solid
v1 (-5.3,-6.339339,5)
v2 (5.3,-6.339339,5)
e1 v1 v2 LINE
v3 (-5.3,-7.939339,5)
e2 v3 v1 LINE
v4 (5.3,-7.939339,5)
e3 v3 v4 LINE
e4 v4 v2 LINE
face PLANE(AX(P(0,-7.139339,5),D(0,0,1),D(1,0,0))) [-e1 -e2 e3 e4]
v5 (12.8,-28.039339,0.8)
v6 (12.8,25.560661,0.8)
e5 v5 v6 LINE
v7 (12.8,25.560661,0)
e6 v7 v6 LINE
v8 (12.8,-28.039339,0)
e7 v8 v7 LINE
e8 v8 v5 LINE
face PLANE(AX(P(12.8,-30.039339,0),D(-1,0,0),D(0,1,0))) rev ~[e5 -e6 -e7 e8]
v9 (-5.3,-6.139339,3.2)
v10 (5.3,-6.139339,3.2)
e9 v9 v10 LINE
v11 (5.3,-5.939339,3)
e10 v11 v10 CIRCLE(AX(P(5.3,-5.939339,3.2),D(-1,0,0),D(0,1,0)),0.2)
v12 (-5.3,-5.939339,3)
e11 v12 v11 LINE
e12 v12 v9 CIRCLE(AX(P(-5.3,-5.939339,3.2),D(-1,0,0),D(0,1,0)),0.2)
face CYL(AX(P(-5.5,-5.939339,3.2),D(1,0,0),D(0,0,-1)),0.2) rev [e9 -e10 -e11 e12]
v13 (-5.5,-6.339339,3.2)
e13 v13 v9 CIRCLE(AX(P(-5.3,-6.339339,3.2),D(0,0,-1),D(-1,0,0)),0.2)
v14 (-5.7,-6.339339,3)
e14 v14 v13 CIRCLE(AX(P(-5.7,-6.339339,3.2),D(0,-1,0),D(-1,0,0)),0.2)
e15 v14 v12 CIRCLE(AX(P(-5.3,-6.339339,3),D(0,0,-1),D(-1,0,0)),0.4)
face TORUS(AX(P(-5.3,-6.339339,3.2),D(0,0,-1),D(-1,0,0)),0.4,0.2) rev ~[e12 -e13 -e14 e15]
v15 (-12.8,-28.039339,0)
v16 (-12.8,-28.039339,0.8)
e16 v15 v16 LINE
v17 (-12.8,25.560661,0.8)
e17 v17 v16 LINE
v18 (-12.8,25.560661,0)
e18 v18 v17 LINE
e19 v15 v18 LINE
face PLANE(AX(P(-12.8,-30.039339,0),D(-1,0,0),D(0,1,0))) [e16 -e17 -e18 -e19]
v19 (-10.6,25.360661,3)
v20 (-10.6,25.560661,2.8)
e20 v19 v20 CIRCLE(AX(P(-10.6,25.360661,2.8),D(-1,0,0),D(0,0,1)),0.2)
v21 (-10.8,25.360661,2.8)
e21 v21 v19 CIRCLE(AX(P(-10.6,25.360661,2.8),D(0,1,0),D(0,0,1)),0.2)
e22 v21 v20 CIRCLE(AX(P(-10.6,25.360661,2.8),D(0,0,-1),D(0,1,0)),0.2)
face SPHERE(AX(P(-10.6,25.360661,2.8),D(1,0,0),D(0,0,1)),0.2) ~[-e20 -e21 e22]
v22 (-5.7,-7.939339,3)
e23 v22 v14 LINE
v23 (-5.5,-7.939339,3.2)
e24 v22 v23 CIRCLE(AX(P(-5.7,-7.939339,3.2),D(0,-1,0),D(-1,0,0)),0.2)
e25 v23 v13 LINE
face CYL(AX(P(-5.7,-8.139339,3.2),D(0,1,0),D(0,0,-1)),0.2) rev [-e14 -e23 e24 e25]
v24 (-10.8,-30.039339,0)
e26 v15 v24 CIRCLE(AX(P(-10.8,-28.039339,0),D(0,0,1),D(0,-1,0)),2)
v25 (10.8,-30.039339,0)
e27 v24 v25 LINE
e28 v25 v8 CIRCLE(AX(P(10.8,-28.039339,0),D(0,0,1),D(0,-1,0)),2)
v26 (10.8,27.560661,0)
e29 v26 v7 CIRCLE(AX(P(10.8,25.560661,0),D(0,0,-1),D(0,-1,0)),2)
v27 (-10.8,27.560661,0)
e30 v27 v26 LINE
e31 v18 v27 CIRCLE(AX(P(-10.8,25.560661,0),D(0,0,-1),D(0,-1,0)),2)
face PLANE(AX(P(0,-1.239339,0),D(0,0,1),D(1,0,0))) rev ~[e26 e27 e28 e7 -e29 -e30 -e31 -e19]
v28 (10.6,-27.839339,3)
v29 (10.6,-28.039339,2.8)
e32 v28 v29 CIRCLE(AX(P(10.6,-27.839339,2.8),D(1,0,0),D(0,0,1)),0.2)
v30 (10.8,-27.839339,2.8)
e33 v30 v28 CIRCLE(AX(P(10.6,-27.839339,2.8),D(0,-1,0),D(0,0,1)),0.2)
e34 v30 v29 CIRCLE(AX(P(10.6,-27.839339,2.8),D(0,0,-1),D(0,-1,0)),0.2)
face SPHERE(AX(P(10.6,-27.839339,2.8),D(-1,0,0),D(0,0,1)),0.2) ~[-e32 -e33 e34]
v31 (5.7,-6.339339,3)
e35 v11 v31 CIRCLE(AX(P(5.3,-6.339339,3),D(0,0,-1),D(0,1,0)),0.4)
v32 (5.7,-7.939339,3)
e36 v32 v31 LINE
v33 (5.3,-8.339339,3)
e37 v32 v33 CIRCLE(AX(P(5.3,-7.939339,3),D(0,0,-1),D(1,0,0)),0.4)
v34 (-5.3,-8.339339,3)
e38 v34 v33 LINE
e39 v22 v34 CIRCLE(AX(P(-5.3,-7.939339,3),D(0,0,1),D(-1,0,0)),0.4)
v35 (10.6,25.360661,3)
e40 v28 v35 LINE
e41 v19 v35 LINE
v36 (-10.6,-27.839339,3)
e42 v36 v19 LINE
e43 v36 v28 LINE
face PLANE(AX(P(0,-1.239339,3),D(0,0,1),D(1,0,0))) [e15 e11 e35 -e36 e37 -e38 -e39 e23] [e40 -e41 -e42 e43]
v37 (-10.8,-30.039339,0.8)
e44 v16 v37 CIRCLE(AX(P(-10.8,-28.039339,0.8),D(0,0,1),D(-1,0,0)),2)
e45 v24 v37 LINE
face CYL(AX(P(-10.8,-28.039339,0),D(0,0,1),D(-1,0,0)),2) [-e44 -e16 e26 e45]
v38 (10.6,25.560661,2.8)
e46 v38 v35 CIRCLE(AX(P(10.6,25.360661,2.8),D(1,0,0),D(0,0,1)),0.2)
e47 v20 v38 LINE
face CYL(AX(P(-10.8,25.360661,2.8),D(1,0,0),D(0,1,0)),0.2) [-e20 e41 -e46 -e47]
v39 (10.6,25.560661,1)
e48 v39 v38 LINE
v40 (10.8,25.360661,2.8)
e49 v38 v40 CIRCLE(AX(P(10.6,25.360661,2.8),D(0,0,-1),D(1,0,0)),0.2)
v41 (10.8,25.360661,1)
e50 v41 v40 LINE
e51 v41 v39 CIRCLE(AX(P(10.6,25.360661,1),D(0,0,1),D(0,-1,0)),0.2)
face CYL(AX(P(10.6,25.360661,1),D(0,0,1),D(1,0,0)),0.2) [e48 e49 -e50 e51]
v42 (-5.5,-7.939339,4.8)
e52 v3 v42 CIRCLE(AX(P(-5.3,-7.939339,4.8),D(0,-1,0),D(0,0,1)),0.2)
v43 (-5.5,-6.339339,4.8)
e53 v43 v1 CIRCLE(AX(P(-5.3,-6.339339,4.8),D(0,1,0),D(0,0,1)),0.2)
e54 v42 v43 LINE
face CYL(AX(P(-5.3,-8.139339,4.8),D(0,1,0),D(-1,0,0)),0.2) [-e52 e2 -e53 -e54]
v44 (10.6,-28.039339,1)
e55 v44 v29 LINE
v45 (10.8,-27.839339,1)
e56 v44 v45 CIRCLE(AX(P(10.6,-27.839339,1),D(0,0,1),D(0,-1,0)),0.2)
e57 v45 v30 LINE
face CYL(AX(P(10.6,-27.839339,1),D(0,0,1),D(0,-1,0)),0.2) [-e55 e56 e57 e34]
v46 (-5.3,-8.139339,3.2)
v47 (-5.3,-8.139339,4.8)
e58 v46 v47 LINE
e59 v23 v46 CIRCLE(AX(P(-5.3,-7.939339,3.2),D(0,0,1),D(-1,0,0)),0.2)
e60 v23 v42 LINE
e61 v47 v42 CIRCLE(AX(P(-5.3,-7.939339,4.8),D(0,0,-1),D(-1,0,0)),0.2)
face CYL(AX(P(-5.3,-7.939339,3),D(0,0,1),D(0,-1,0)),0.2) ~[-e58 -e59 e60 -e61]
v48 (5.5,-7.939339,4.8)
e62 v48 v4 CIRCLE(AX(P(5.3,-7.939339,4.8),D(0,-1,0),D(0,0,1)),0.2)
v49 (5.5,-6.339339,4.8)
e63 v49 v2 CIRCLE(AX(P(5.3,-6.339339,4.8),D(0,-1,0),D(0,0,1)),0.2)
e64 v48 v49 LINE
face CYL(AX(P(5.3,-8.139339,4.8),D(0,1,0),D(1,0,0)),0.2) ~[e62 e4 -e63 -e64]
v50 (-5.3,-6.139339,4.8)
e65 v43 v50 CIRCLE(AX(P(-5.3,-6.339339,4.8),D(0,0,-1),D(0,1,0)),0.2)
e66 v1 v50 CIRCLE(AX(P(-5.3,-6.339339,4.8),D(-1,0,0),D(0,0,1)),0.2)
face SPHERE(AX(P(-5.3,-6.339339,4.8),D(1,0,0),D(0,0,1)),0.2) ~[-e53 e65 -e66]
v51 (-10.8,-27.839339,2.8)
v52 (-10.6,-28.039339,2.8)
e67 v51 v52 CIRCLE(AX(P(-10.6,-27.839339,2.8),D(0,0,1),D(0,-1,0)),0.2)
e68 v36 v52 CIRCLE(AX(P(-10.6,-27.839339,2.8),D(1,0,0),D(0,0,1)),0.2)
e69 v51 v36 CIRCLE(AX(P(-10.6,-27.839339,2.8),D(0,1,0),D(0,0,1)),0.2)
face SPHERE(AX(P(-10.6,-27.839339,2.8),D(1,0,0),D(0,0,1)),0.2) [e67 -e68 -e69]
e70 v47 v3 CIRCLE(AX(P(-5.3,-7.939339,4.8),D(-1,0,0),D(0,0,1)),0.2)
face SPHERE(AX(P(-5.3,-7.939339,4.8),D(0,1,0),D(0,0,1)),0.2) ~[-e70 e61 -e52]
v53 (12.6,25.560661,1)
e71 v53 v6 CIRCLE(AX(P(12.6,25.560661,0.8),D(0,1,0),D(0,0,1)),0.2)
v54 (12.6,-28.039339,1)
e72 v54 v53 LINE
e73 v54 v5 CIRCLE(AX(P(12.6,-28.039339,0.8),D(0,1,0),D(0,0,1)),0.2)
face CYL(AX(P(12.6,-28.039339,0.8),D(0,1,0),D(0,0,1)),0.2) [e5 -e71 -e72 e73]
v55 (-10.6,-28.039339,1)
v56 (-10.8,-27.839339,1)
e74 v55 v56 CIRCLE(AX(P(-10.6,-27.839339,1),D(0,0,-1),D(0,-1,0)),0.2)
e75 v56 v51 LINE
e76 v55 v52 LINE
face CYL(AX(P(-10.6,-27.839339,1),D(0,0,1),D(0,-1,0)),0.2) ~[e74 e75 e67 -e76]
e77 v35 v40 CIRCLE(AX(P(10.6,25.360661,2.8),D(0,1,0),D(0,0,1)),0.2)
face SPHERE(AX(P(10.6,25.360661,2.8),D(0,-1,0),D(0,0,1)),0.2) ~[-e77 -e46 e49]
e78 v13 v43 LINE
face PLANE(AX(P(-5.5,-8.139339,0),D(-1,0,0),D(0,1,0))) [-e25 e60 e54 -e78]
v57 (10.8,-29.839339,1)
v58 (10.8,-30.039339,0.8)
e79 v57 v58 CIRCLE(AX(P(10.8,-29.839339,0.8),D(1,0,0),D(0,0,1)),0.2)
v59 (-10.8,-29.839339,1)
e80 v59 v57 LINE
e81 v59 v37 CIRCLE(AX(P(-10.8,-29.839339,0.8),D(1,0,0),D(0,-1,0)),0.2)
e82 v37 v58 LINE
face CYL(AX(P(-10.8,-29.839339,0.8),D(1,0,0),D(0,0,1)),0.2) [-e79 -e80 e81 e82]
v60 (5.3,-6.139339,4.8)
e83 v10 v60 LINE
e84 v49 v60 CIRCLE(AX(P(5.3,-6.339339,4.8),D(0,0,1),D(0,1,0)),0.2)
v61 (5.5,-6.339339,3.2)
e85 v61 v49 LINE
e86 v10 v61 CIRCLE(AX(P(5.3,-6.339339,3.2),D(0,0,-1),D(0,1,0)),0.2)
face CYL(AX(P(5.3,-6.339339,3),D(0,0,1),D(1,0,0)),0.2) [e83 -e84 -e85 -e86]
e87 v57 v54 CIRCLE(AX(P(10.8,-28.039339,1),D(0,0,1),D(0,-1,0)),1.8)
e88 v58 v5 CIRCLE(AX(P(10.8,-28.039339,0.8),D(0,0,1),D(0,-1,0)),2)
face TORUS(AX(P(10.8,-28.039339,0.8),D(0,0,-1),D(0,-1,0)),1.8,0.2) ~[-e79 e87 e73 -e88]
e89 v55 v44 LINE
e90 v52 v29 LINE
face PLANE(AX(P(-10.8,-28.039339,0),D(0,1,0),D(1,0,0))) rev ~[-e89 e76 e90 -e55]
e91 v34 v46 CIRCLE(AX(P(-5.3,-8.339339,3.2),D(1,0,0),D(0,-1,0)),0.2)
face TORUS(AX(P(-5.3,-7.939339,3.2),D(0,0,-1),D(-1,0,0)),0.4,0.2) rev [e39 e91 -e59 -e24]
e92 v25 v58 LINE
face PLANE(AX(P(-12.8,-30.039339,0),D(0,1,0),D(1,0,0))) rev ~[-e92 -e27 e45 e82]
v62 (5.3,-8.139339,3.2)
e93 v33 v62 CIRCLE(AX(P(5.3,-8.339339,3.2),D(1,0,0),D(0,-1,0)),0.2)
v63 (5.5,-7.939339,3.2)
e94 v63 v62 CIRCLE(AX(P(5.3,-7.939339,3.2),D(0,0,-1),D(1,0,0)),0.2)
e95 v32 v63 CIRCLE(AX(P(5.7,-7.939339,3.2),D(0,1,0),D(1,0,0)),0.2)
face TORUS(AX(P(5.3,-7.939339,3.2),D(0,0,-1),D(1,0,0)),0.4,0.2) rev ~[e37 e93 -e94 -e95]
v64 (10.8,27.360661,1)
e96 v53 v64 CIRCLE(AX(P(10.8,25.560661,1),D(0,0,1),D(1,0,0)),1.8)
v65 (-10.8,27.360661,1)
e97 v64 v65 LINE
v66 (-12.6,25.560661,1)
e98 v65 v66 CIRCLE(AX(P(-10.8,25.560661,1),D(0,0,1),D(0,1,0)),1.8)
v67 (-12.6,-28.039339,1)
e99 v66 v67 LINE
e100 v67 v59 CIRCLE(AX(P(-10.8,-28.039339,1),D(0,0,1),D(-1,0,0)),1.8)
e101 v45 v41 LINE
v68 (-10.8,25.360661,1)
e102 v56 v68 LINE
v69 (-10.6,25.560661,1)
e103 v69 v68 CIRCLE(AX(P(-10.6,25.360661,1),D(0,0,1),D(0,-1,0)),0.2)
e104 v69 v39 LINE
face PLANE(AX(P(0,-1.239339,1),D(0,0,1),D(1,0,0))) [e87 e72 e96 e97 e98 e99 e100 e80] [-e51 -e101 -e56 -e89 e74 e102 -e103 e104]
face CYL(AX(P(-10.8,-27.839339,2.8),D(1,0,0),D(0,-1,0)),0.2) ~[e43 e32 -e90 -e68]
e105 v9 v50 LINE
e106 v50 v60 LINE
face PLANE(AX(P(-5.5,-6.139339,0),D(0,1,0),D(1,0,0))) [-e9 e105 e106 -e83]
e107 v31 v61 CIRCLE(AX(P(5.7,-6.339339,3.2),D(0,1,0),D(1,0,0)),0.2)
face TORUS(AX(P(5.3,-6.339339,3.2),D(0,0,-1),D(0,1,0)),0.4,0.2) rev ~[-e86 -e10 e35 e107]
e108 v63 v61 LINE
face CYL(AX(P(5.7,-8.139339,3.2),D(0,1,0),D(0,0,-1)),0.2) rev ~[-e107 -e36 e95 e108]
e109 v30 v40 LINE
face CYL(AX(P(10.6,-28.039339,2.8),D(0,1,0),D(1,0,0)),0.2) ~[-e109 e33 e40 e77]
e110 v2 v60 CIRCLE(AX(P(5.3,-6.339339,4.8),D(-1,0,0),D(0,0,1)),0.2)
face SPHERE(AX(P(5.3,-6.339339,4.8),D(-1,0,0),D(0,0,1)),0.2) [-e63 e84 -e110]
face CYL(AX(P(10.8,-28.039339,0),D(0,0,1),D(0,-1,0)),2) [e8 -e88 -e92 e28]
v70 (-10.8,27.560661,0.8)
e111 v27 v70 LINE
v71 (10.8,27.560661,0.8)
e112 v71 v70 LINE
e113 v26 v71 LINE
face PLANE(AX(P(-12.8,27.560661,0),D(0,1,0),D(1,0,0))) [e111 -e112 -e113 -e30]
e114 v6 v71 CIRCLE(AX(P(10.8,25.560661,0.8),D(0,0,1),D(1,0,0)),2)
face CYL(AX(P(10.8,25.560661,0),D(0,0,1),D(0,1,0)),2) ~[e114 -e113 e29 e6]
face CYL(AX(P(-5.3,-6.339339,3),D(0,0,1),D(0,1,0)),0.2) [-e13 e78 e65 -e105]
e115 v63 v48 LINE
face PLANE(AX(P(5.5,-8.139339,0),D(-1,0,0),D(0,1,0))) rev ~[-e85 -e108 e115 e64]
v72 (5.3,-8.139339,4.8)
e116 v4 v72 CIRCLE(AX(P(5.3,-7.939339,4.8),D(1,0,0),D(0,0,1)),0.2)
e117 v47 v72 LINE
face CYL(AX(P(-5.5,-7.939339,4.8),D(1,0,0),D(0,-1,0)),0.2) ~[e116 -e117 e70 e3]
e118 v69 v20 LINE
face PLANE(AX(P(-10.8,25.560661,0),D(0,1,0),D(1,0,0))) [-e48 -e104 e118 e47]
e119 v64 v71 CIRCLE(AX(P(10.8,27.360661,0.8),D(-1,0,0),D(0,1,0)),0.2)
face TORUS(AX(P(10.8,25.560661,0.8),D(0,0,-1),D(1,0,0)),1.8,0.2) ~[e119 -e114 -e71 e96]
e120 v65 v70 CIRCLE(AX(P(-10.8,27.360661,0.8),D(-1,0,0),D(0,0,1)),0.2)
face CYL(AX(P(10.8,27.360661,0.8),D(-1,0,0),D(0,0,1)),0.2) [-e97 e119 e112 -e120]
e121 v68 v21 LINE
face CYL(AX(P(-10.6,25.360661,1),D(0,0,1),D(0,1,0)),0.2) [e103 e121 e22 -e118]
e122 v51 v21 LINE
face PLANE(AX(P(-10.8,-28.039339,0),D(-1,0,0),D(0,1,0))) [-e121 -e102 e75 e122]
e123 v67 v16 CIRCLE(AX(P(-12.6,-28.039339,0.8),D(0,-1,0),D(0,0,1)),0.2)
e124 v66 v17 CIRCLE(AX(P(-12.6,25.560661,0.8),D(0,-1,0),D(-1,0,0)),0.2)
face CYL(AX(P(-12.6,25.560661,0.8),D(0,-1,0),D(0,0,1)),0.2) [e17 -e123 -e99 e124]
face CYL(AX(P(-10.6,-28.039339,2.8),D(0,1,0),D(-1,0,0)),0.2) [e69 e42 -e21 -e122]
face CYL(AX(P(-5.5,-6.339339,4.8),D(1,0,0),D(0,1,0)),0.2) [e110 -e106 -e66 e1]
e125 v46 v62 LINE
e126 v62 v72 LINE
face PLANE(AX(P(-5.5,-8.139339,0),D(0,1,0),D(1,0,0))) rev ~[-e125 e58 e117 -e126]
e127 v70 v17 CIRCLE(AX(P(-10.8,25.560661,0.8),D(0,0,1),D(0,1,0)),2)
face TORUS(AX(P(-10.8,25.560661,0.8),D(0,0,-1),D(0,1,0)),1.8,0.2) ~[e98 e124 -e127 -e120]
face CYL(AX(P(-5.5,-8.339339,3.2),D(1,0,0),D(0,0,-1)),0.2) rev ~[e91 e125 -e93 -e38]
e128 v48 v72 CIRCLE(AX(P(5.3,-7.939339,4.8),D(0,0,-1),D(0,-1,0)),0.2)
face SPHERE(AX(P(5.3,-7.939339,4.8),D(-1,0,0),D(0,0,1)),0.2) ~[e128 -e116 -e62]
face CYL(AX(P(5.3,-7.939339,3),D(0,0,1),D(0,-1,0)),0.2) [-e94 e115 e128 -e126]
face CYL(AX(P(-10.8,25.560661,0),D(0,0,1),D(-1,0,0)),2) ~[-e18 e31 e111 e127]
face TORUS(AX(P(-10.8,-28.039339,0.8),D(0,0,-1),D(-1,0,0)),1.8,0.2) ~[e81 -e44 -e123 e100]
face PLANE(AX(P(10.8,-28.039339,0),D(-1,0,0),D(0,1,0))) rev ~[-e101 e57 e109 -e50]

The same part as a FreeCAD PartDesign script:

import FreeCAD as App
import Part
import Sketcher

V = App.Vector


def edges_at(feature, points):
    """Names of the edges that pass closest to the given points."""
    edges = feature.Shape.Edges
    near = lambda p: min(range(len(edges)), key=lambda i: edges[i].distToShape(Part.Vertex(*p))[0])
    return sorted({f"Edge{near(p) + 1}" for p in points})

doc = App.newDocument("Part")
params = doc.addObject("Spreadsheet::Sheet", "Params")
for row, (alias, value) in enumerate([
    ("sketch1_width", "25.6 mm"),
    ("sketch1_width2", "21.6 mm"),
    ("sketch1_height", "57.6 mm"),
    ("sketch1_height2", "53.6 mm"),
    ("pad1_length", "1 mm"),
    ("sketch2_width", "11 mm"),
    ("sketch2_height", "2 mm"),
    ("sketch2_width2", "21.6 mm"),
    ("sketch2_height2", "53.6 mm"),
    ("pad2_length", "3 mm"),
    ("sketch3_width", "11 mm"),
    ("sketch3_height", "2 mm"),
    ("pad3_length", "5 mm"),
    ("fillet_radius", "2 mm"),
    ("fillet2_radius", "0.2 mm"),
], start=1):
    params.set(f"A{row}", alias)
    params.set(f"B{row}", "=" + value)
    params.setAlias(f"B{row}", alias)

body = doc.addObject("PartDesign::Body", "Body")

# Sketch on XY plane
sketch1 = body.newObject("Sketcher::SketchObject", "Sketch")
sketch1.AttachmentSupport = (doc.getObject("XY_Plane"), [""])
sketch1.MapMode = "FlatFace"
sketch1.addGeometry([
    Part.LineSegment(V(-13, 28, 0), V(-13, -30, 0)),  # 0
    Part.LineSegment(V(-13, -30, 0), V(13, -30, 0)),  # 1
    Part.LineSegment(V(13, -30, 0), V(13, 28, 0)),  # 2
    Part.LineSegment(V(13, 28, 0), V(-13, 28, 0)),  # 3
    Part.LineSegment(V(11, -28, 0), V(-11, -28, 0)),  # 4
    Part.LineSegment(V(-11, -28, 0), V(-11, 26, 0)),  # 5
    Part.LineSegment(V(-11, 26, 0), V(11, 26, 0)),  # 6
    Part.LineSegment(V(11, 26, 0), V(11, -28, 0)),  # 7
], False)
sketch1.addConstraint([
    Sketcher.Constraint("Coincident", 0, 2, 1, 1),
    Sketcher.Constraint("Coincident", 1, 2, 2, 1),
    Sketcher.Constraint("Coincident", 2, 2, 3, 1),
    Sketcher.Constraint("Coincident", 3, 2, 0, 1),
    Sketcher.Constraint("Coincident", 4, 2, 5, 1),
    Sketcher.Constraint("Coincident", 5, 2, 6, 1),
    Sketcher.Constraint("Coincident", 6, 2, 7, 1),
    Sketcher.Constraint("Coincident", 7, 2, 4, 1),
    Sketcher.Constraint("Vertical", 0),
    Sketcher.Constraint("Horizontal", 1),
    Sketcher.Constraint("Vertical", 2),
    Sketcher.Constraint("Horizontal", 3),
    Sketcher.Constraint("Horizontal", 4),
    Sketcher.Constraint("Vertical", 5),
    Sketcher.Constraint("Horizontal", 6),
    Sketcher.Constraint("Vertical", 7),
    Sketcher.Constraint("DistanceX", 1, 1, 1, 2, 25.6),
    Sketcher.Constraint("DistanceX", 4, 2, 4, 1, 21.6),
    Sketcher.Constraint("DistanceY", 0, 2, 0, 1, 57.6),
    Sketcher.Constraint("DistanceY", 5, 1, 5, 2, 53.6),
    Sketcher.Constraint("DistanceX", 0, 2, 4, 2, 2.0),
    Sketcher.Constraint("DistanceY", 0, 2, 4, 2, 2.0),
    Sketcher.Constraint("DistanceX", 0, 2, -1, 1, 12.8),
    Sketcher.Constraint("DistanceY", 0, 2, -1, 1, 30.039339),
])
sketch1.setExpression("Constraints[16]", "Params.sketch1_width")
sketch1.setExpression("Constraints[17]", "Params.sketch1_width2")
sketch1.setExpression("Constraints[18]", "Params.sketch1_height")
sketch1.setExpression("Constraints[19]", "Params.sketch1_height2")
pad1 = body.newObject("PartDesign::Pad", "Pad")
pad1.Profile = sketch1
pad1.setExpression("Length", "Params.pad1_length")

# Sketch on XY plane
sketch2 = body.newObject("Sketcher::SketchObject", "Sketch001")
sketch2.AttachmentSupport = (doc.getObject("XY_Plane"), [""])
sketch2.MapMode = "FlatFace"
sketch2.addGeometry([
    Part.LineSegment(V(-10.8, 25.6, 0), V(-10.8, -28, 0)),  # 0
    Part.LineSegment(V(-10.8, -28, 0), V(10.8, -28, 0)),  # 1
    Part.LineSegment(V(10.8, -28, 0), V(10.8, 25.6, 0)),  # 2
    Part.LineSegment(V(10.8, 25.6, 0), V(-10.8, 25.6, 0)),  # 3
    Part.LineSegment(V(5.5, -8.1, 0), V(-5.5, -8.1, 0)),  # 4
    Part.LineSegment(V(-5.5, -8.1, 0), V(-5.5, -6.1, 0)),  # 5
    Part.LineSegment(V(-5.5, -6.1, 0), V(5.5, -6.1, 0)),  # 6
    Part.LineSegment(V(5.5, -6.1, 0), V(5.5, -8.1, 0)),  # 7
], False)
sketch2.addConstraint([
    Sketcher.Constraint("Coincident", 0, 2, 1, 1),
    Sketcher.Constraint("Coincident", 1, 2, 2, 1),
    Sketcher.Constraint("Coincident", 2, 2, 3, 1),
    Sketcher.Constraint("Coincident", 3, 2, 0, 1),
    Sketcher.Constraint("Coincident", 4, 2, 5, 1),
    Sketcher.Constraint("Coincident", 5, 2, 6, 1),
    Sketcher.Constraint("Coincident", 6, 2, 7, 1),
    Sketcher.Constraint("Coincident", 7, 2, 4, 1),
    Sketcher.Constraint("Vertical", 0),
    Sketcher.Constraint("Horizontal", 1),
    Sketcher.Constraint("Vertical", 2),
    Sketcher.Constraint("Horizontal", 3),
    Sketcher.Constraint("Horizontal", 4),
    Sketcher.Constraint("Vertical", 5),
    Sketcher.Constraint("Horizontal", 6),
    Sketcher.Constraint("Vertical", 7),
    Sketcher.Constraint("DistanceX", 4, 2, 4, 1, 11.0),
    Sketcher.Constraint("DistanceY", 5, 1, 5, 2, 2.0),
    Sketcher.Constraint("DistanceX", 1, 1, 1, 2, 21.6),
    Sketcher.Constraint("DistanceY", 0, 2, 0, 1, 53.6),
    Sketcher.Constraint("DistanceX", 0, 2, -1, 1, 10.8),
    Sketcher.Constraint("DistanceX", 4, 2, -1, 1, 5.5),
    Sketcher.Constraint("DistanceY", 0, 2, 4, 2, 19.9),
    Sketcher.Constraint("DistanceY", 0, 2, -1, 1, 28.039339),
])
sketch2.setExpression("Constraints[16]", "Params.sketch2_width")
sketch2.setExpression("Constraints[17]", "Params.sketch2_height")
sketch2.setExpression("Constraints[18]", "Params.sketch2_width2")
sketch2.setExpression("Constraints[19]", "Params.sketch2_height2")
pad2 = body.newObject("PartDesign::Pad", "Pad001")
pad2.Profile = sketch2
pad2.setExpression("Length", "Params.pad2_length")

# Sketch on XY plane
sketch3 = body.newObject("Sketcher::SketchObject", "Sketch002")
sketch3.AttachmentSupport = (doc.getObject("XY_Plane"), [""])
sketch3.MapMode = "FlatFace"
sketch3.addGeometry([
    Part.LineSegment(V(-5.5, -6.1, 0), V(-5.5, -8.1, 0)),
    Part.LineSegment(V(-5.5, -8.1, 0), V(5.5, -8.1, 0)),
    Part.LineSegment(V(5.5, -8.1, 0), V(5.5, -6.1, 0)),
    Part.LineSegment(V(5.5, -6.1, 0), V(-5.5, -6.1, 0)),
], False)
sketch3.addConstraint([
    Sketcher.Constraint("Coincident", 0, 2, 1, 1),
    Sketcher.Constraint("Coincident", 1, 2, 2, 1),
    Sketcher.Constraint("Coincident", 2, 2, 3, 1),
    Sketcher.Constraint("Coincident", 3, 2, 0, 1),
    Sketcher.Constraint("Vertical", 0),
    Sketcher.Constraint("Horizontal", 1),
    Sketcher.Constraint("Vertical", 2),
    Sketcher.Constraint("Horizontal", 3),
    Sketcher.Constraint("DistanceX", 1, 1, 1, 2, 11.0),
    Sketcher.Constraint("DistanceY", 0, 2, 0, 1, 2.0),
    Sketcher.Constraint("DistanceX", 0, 2, -1, 1, 5.5),
    Sketcher.Constraint("DistanceY", 0, 2, -1, 1, 8.139339),
])
sketch3.setExpression("Constraints[8]", "Params.sketch3_width")
sketch3.setExpression("Constraints[9]", "Params.sketch3_height")
pad3 = body.newObject("PartDesign::Pad", "Pad002")
pad3.Profile = sketch3
pad3.setExpression("Length", "Params.pad3_length")
doc.recompute()

fillet = body.newObject("PartDesign::Fillet", "Fillet")
fillet.Base = (pad3, edges_at(pad3, [
    (-12.8, -30.039, 0.5),
    (12.8, -30.039, 0.5),
    (12.8, 27.561, 0.5),
    (-12.8, 27.561, 0.5),
]))
fillet.setExpression("Radius", "Params.fillet_radius")
doc.recompute()

fillet2 = body.newObject("PartDesign::Fillet", "Fillet001")
fillet2.Base = (fillet, edges_at(fillet, [
    (12.8, -1.239, 1),
    (0, -28.039, 3),
    (10.8, -1.239, 3),
    (0, 25.561, 3),
    (-10.8, -1.239, 3),
    (-5.5, -7.139, 3),
    (0, -6.139, 3),
    (5.5, -7.139, 3),
    (0, -8.139, 3),
    (10.8, 25.561, 2),
    (-10.8, 25.561, 2),
    (-10.8, -28.039, 2),
    (10.8, -28.039, 2),
    (0, -6.139, 5),
    (-5.5, -7.139, 5),
    (0, -8.139, 5),
    (5.5, -7.139, 5),
    (5.5, -8.139, 4),
    (-5.5, -8.139, 4),
    (5.5, -6.139, 4),
    (-5.5, -6.139, 4),
]))
fillet2.setExpression("Radius", "Params.fillet2_radius")

doc.recompute()
